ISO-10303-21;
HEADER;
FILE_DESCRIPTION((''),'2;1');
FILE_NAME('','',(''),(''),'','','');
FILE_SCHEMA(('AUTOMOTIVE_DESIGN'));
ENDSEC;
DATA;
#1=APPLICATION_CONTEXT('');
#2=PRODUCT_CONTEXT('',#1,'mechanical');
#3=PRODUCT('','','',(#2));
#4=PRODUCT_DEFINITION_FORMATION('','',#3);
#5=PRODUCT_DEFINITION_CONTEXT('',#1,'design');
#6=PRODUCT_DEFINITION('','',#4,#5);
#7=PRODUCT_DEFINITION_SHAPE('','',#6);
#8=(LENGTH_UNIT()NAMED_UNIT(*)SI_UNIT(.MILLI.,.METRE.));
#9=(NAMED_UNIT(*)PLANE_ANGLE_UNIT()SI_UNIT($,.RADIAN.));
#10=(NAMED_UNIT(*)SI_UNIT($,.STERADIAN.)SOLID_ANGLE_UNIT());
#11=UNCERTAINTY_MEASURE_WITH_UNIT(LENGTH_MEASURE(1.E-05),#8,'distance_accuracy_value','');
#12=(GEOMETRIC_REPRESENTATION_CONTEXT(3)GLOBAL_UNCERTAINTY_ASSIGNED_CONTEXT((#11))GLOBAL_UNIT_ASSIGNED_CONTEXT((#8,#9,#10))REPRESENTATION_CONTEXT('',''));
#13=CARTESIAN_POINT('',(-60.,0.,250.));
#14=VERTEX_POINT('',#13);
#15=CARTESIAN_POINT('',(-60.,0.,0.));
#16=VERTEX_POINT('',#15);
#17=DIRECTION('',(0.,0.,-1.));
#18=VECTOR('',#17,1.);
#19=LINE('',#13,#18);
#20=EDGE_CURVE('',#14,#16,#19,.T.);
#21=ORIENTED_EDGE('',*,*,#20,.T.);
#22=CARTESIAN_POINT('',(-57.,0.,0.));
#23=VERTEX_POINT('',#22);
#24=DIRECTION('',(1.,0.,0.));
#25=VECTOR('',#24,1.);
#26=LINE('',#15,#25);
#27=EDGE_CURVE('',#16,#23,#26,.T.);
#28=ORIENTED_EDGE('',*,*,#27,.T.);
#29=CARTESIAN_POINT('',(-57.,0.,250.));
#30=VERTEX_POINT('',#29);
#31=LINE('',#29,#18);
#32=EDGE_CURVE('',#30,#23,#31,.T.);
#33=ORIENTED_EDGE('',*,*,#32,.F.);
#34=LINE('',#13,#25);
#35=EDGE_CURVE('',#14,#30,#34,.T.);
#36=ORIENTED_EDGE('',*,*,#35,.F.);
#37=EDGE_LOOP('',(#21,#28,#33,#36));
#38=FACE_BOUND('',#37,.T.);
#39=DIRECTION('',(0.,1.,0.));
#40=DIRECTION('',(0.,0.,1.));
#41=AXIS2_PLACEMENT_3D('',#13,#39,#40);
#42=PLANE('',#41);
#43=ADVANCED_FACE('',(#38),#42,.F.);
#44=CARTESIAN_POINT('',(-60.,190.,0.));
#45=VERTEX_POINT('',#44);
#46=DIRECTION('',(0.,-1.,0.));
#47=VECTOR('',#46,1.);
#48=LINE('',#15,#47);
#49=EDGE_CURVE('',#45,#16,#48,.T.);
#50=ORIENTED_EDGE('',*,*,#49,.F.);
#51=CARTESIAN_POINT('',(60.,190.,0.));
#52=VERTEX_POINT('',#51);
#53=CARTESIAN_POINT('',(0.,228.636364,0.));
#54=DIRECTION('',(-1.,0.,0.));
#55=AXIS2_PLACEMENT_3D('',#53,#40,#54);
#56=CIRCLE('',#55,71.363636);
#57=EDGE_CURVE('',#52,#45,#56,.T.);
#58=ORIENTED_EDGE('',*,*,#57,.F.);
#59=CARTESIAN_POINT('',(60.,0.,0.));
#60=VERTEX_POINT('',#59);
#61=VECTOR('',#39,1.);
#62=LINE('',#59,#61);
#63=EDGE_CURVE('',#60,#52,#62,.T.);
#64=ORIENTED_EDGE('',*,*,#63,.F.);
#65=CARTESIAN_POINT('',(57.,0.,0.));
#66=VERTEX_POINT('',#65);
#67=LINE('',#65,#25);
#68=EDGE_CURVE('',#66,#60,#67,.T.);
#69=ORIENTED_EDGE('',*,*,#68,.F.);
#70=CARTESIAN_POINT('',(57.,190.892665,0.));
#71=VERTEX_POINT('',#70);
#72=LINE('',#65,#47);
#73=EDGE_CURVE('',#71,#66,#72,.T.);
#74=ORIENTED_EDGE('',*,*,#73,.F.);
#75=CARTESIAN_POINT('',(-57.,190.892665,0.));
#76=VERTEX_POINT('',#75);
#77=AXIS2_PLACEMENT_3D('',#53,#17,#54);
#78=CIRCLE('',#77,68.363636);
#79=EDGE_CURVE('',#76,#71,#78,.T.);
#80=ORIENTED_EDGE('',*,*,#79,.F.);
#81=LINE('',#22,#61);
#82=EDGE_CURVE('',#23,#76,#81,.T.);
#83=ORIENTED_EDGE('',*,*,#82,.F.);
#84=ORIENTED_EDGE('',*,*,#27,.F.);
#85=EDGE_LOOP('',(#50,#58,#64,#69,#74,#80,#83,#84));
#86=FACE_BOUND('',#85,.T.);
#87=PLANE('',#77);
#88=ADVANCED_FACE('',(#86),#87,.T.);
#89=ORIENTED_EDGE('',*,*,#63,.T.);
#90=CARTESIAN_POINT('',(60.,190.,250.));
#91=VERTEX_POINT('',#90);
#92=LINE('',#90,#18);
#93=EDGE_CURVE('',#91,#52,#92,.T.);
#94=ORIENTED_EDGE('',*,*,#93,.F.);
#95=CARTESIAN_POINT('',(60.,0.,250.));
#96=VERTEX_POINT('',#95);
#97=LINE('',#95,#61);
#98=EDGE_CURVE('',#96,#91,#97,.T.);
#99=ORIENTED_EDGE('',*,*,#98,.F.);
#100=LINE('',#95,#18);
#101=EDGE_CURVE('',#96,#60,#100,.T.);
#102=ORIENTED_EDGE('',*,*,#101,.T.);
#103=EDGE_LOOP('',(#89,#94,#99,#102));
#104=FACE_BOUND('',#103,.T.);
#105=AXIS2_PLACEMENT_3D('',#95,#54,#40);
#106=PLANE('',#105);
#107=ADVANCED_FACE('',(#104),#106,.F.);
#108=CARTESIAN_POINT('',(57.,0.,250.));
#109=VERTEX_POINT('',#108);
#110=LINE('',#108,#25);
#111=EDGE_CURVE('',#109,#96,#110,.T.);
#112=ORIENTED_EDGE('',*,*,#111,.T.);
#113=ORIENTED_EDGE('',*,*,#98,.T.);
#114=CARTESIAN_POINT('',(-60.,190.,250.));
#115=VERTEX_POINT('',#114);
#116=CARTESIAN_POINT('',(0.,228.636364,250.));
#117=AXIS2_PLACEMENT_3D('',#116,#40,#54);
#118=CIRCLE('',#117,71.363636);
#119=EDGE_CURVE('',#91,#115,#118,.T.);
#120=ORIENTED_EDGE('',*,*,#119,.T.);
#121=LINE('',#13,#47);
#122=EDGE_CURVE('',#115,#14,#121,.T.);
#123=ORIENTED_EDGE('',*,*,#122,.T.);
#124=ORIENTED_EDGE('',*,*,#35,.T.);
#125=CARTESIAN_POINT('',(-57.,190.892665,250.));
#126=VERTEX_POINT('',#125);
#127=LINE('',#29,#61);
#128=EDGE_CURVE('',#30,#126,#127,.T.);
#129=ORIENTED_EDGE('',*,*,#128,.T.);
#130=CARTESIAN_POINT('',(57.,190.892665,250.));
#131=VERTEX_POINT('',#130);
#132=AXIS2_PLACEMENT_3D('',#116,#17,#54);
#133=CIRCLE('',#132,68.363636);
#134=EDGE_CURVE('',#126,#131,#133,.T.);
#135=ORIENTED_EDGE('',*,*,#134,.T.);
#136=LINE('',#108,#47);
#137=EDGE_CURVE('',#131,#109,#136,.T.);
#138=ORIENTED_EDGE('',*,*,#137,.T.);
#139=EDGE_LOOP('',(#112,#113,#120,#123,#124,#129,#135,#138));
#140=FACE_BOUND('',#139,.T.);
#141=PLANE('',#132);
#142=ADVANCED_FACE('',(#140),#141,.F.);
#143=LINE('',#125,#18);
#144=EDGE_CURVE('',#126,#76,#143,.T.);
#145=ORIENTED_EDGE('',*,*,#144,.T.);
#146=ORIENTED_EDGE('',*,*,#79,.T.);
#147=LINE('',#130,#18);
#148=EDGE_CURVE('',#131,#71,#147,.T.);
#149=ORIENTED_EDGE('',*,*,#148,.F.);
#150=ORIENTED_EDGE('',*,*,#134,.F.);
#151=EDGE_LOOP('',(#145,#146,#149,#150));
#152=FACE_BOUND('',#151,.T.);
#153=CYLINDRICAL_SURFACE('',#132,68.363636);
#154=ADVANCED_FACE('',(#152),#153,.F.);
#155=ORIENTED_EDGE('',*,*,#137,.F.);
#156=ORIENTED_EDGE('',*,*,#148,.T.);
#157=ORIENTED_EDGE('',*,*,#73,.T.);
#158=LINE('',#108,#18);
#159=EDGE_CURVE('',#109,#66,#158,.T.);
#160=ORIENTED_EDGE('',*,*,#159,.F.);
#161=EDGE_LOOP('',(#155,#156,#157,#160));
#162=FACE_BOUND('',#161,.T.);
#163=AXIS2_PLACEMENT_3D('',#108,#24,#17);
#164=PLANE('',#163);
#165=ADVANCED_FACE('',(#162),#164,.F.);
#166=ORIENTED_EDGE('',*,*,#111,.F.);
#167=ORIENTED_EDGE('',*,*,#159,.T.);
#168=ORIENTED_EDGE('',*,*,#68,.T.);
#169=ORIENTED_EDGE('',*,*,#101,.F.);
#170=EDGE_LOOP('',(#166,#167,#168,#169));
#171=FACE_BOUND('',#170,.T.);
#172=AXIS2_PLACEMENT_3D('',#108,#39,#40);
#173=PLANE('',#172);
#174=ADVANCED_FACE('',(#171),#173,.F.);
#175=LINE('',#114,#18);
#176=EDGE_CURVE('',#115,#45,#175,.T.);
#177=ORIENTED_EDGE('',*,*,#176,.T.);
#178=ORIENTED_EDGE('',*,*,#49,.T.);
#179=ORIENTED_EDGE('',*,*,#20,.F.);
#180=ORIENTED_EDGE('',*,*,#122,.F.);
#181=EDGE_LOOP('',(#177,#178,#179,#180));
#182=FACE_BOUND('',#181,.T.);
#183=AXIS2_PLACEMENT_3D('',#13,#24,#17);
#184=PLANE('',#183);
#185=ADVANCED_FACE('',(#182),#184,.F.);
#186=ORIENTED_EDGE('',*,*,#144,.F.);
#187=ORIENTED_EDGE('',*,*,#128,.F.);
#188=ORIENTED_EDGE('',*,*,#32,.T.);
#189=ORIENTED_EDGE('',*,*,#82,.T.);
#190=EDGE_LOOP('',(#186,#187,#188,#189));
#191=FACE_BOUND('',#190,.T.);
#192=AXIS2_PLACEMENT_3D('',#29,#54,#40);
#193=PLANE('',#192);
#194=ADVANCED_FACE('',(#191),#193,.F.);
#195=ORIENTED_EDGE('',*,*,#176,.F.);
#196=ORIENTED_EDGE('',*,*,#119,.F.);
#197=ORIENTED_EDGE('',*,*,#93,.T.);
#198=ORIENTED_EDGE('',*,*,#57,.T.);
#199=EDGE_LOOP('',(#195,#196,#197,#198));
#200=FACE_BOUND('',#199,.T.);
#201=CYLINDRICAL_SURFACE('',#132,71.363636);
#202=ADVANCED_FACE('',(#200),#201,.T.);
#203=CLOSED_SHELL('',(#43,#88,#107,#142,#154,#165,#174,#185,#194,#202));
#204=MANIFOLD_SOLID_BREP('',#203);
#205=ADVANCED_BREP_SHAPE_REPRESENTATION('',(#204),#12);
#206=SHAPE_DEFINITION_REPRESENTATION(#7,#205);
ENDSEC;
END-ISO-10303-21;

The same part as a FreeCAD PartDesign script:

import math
import FreeCAD as App
import Part
import Sketcher

V = App.Vector
Q = App.Units.Quantity

doc = App.newDocument("Part")
body = doc.addObject("PartDesign::Body", "Body")

sketch1 = body.newObject("Sketcher::SketchObject", "Sketch")
sketch1.AttachmentSupport = (doc.getObject("XY_Plane"), [""])
sketch1.MapMode = "FlatFace"
sketch1.addGeometry(Part.LineSegment(V(60, 0, 0), V(60, 190, 0)), False)
sketch1.addGeometry(Part.ArcOfCircle(Part.Circle(V(0, 228.636364, 0), V(0, 0, 1), 71.363636), math.radians(-32.779081), math.radians(212.779081)), False)
sketch1.addGeometry(Part.LineSegment(V(-60, 190, 0), V(-60, 0, 0)), False)
sketch1.addGeometry(Part.LineSegment(V(-60, 0, 0), V(-57, 0, 0)), False)
sketch1.addGeometry(Part.LineSegment(V(-57, 0, 0), V(-57, 190.892665, 0)), False)
sketch1.addGeometry(Part.ArcOfCircle(Part.Circle(V(0, 228.636364, 0), V(0, 0, 1), 68.363636), math.radians(-33.511337), math.radians(213.511337)), False)
sketch1.addGeometry(Part.LineSegment(V(57, 190.892665, 0), V(57, 0, 0)), False)
sketch1.addGeometry(Part.LineSegment(V(57, 0, 0), V(60, 0, 0)), False)
sketch1.addConstraint(Sketcher.Constraint("Coincident", 0, 2, 1, 1))
sketch1.addConstraint(Sketcher.Constraint("Coincident", 1, 2, 2, 1))
sketch1.addConstraint(Sketcher.Constraint("Coincident", 2, 2, 3, 1))
sketch1.addConstraint(Sketcher.Constraint("Coincident", 3, 2, 4, 1))
sketch1.addConstraint(Sketcher.Constraint("Coincident", 4, 2, 5, 2))
sketch1.addConstraint(Sketcher.Constraint("Coincident", 5, 1, 6, 1))
sketch1.addConstraint(Sketcher.Constraint("Coincident", 6, 2, 7, 1))
sketch1.addConstraint(Sketcher.Constraint("Coincident", 7, 2, 0, 1))
sketch1.addConstraint(Sketcher.Constraint("Vertical", 0))
sketch1.addConstraint(Sketcher.Constraint("Vertical", 2))
sketch1.addConstraint(Sketcher.Constraint("Horizontal", 3))
sketch1.addConstraint(Sketcher.Constraint("Vertical", 4))
sketch1.addConstraint(Sketcher.Constraint("Vertical", 6))
sketch1.addConstraint(Sketcher.Constraint("Horizontal", 7))
sketch1.addConstraint(Sketcher.Constraint("Coincident", 5, 3, 1, 3))
sketch1.addConstraint(Sketcher.Constraint("Symmetric", 3, 2, 6, 2, -1, 1))
sketch1.addConstraint(Sketcher.Constraint("Symmetric", 0, 2, 1, 2, -2))
sketch1.addConstraint(Sketcher.Constraint("PointOnObject", 2, 2, -1))
sketch1.addConstraint(Sketcher.Constraint("DistanceX", 3, 1, 3, 2, Q("3 mm")))
sketch1.addConstraint(Sketcher.Constraint("DistanceY", 0, 1, 0, 2, Q("190 mm")))
sketch1.addConstraint(Sketcher.Constraint("DistanceX", -1, 1, 0, 2, Q("60 mm")))
sketch1.addConstraint(Sketcher.Constraint("Radius", 1, Q("71.363636 mm")))
sketch1.addConstraint(Sketcher.Constraint("Radius", 5, Q("68.363636 mm")))
pad1 = body.newObject("PartDesign::Pad", "Pad")
pad1.Profile = sketch1
pad1.Length = 250

doc.recompute()
